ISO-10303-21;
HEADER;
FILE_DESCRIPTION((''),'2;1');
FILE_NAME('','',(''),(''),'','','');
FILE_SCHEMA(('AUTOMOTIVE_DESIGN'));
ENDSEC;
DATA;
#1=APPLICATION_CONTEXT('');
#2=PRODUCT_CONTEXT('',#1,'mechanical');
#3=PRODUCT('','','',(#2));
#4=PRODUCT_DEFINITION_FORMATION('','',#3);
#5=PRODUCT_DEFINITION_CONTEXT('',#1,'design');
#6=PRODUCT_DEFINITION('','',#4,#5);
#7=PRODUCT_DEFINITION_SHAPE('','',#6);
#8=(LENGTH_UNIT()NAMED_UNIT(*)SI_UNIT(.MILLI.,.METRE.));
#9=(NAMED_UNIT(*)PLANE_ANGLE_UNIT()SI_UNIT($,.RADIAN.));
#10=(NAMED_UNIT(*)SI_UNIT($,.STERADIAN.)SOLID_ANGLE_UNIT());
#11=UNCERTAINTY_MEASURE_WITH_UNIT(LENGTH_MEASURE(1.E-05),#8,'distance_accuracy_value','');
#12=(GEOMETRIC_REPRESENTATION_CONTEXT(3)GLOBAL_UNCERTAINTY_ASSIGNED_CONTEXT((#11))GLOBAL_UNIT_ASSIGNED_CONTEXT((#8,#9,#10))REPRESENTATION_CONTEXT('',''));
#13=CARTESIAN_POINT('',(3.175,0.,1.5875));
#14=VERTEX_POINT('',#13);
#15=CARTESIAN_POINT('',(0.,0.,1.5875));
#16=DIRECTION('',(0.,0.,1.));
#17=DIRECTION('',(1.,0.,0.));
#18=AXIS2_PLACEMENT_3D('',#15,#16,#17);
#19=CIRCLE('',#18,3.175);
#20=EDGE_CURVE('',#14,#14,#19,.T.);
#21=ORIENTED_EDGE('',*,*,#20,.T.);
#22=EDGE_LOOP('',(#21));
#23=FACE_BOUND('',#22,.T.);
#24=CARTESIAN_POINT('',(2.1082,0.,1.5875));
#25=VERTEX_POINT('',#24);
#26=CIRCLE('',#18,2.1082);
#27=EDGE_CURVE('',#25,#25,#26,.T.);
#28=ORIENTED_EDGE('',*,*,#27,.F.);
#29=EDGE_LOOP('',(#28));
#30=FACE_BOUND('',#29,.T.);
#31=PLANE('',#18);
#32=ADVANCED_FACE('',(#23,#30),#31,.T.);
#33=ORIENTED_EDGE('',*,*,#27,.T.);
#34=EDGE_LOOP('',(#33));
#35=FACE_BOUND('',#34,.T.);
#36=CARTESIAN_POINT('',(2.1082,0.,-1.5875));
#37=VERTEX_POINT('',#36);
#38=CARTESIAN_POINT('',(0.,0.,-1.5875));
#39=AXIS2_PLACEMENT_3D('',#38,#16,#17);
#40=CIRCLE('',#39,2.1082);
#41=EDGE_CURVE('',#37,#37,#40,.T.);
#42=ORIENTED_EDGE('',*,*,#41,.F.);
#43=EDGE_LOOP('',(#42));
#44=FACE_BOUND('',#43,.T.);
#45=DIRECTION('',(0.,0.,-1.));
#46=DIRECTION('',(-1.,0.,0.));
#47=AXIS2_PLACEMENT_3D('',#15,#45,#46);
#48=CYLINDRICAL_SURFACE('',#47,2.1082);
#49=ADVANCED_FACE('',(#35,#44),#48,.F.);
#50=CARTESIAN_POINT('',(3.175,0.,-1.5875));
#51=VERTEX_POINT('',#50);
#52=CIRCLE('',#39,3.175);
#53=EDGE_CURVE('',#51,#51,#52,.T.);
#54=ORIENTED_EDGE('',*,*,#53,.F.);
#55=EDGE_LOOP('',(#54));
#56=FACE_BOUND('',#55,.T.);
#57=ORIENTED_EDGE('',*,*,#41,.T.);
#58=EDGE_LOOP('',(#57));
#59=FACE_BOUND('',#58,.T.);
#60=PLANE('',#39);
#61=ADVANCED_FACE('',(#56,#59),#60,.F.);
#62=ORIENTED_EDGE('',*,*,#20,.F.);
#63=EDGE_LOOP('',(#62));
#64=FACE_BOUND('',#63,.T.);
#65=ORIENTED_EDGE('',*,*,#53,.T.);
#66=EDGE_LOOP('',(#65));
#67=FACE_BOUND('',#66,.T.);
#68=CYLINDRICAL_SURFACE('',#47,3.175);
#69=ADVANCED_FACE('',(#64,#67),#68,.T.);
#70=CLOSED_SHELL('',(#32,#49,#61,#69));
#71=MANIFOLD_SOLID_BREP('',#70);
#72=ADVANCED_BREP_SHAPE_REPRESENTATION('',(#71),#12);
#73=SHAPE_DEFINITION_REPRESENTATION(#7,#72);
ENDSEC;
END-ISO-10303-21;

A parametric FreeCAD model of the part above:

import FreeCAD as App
import Part
import Sketcher
from FreeCAD import Vector
Q = App.Units.Quantity

doc = App.newDocument("Part")
body = doc.addObject("PartDesign::Body", "Body")

# Sketch on XY plane
sketch1 = body.newObject("Sketcher::SketchObject", "Sketch")
sketch1.AttachmentSupport = (doc.getObject("XY_Plane"), [""])
sketch1.MapMode = "FlatFace"
sketch1.addGeometry(Part.Circle(Vector(0, 0, 0), Vector(0, 0, 1), 3.2), False)
sketch1.addGeometry(Part.Circle(Vector(0, 0, 0), Vector(0, 0, 1), 2.1), False)
sketch1.addConstraint(Sketcher.Constraint("Coincident", 0, 3, -1, 1))
sketch1.addConstraint(Sketcher.Constraint("Coincident", 1, 3, -1, 1))
sketch1.addConstraint(Sketcher.Constraint("Diameter", 0, Q("0.25 in")))
sketch1.addConstraint(Sketcher.Constraint("Diameter", 1, Q("0.166 in")))
pad1 = body.newObject("PartDesign::Pad", "Pad")
pad1.Profile = sketch1
pad1.Length = Q("0.125 in")
pad1.Midplane = True

doc.recompute()
